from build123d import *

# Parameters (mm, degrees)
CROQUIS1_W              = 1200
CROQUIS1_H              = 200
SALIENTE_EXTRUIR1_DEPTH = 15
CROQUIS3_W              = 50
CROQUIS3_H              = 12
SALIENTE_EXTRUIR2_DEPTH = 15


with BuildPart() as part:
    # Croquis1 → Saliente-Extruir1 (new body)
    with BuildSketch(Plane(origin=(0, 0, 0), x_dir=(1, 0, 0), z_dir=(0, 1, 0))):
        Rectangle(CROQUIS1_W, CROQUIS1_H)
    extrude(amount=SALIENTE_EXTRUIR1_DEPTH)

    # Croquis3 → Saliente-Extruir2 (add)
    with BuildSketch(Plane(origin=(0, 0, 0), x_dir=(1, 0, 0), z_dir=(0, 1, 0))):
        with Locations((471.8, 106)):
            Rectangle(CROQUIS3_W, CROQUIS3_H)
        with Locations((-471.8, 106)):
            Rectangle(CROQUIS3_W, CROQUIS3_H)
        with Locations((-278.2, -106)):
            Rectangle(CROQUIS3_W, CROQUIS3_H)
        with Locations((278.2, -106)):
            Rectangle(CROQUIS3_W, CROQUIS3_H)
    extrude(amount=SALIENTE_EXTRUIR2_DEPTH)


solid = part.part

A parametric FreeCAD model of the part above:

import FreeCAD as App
import Part
import Sketcher

V = App.Vector


def add_polygon(sketch, points):
    """Adds a closed chain of lines whose ends are joined by coincident constraints."""
    first, n = sketch.GeometryCount, len(points)
    for a, b in zip(points, points[1:] + points[:1]):
        sketch.addGeometry(Part.LineSegment(App.Vector(*a, 0), App.Vector(*b, 0)), False)
    for i in range(n):
        sketch.addConstraint(Sketcher.Constraint("Coincident", first + i, 2, first + (i + 1) % n, 1))

doc = App.newDocument("Part")
body = doc.addObject("PartDesign::Body", "Body")

# Sketch on XZ plane
sketch1 = body.newObject("Sketcher::SketchObject", "Sketch")
sketch1.AttachmentSupport = (doc.getObject("XZ_Plane"), [""])
sketch1.MapMode = "FlatFace"
add_polygon(sketch1, [(-600, -100), (-600, 100), (600, 100), (600, -100)])  # lines 0-3
sketch1.addConstraint([
    Sketcher.Constraint("Vertical", 0),
    Sketcher.Constraint("Horizontal", 1),
    Sketcher.Constraint("Vertical", 2),
    Sketcher.Constraint("Horizontal", 3),
    Sketcher.Constraint("Symmetric", 0, 2, 2, 2, -1, 1),
    Sketcher.Constraint("DistanceX", 1, 1, 1, 2, 1200.0),
    Sketcher.Constraint("DistanceY", 0, 1, 0, 2, 200.0),
])
pad1 = body.newObject("PartDesign::Pad", "Pad")
pad1.Profile = sketch1
pad1.Length = 15
pad1.Reversed = True

# Sketch on XZ plane
sketch2 = body.newObject("Sketcher::SketchObject", "Sketch001")
sketch2.AttachmentSupport = (doc.getObject("XZ_Plane"), [""])
sketch2.MapMode = "FlatFace"
add_polygon(sketch2, [(446.8, -112), (446.8, -100), (496.8, -100), (496.8, -112)])  # lines 0-3
add_polygon(sketch2, [(-496.8, -112), (-496.8, -100), (-446.8, -100), (-446.8, -112)])  # lines 4-7
add_polygon(sketch2, [(-303.2, 100), (-303.2, 112), (-253.2, 112), (-253.2, 100)])  # lines 8-11
add_polygon(sketch2, [(253.2, 100), (253.2, 112), (303.2, 112), (303.2, 100)])  # lines 12-15
sketch2.addConstraint([
    Sketcher.Constraint("Vertical", 0),
    Sketcher.Constraint("Horizontal", 1),
    Sketcher.Constraint("Vertical", 2),
    Sketcher.Constraint("Horizontal", 3),
    Sketcher.Constraint("Vertical", 4),
    Sketcher.Constraint("Horizontal", 5),
    Sketcher.Constraint("Vertical", 6),
    Sketcher.Constraint("Horizontal", 7),
    Sketcher.Constraint("Vertical", 8),
    Sketcher.Constraint("Horizontal", 9),
    Sketcher.Constraint("Vertical", 10),
    Sketcher.Constraint("Horizontal", 11),
    Sketcher.Constraint("Vertical", 12),
    Sketcher.Constraint("Horizontal", 13),
    Sketcher.Constraint("Vertical", 14),
    Sketcher.Constraint("Horizontal", 15),
    Sketcher.Constraint("Symmetric", 1, 2, 4, 2, -2),
    Sketcher.Constraint("Symmetric", 3, 2, 6, 2, -2),
    Sketcher.Constraint("Symmetric", 9, 2, 12, 2, -2),
    Sketcher.Constraint("Symmetric", 11, 2, 14, 2, -2),
    Sketcher.Constraint("Equal", 7, 9),
    Sketcher.Constraint("Equal", 6, 8),
    Sketcher.Constraint("DistanceX", 1, 1, 1, 2, 50.0),
    Sketcher.Constraint("DistanceY", 0, 1, 0, 2, 12.0),
    Sketcher.Constraint("DistanceY", 0, 2, -1, 1, 100.0),
    Sketcher.Constraint("DistanceY", -1, 1, 8, 2, 112.0),
    Sketcher.Constraint("DistanceX", 8, 2, 0, 2, 750.0),
    Sketcher.Constraint("DistanceX", -1, 1, 0, 2, 446.8),
])
pad2 = body.newObject("PartDesign::Pad", "Pad001")
pad2.Profile = sketch2
pad2.Length = 15
pad2.Reversed = True

doc.recompute()
